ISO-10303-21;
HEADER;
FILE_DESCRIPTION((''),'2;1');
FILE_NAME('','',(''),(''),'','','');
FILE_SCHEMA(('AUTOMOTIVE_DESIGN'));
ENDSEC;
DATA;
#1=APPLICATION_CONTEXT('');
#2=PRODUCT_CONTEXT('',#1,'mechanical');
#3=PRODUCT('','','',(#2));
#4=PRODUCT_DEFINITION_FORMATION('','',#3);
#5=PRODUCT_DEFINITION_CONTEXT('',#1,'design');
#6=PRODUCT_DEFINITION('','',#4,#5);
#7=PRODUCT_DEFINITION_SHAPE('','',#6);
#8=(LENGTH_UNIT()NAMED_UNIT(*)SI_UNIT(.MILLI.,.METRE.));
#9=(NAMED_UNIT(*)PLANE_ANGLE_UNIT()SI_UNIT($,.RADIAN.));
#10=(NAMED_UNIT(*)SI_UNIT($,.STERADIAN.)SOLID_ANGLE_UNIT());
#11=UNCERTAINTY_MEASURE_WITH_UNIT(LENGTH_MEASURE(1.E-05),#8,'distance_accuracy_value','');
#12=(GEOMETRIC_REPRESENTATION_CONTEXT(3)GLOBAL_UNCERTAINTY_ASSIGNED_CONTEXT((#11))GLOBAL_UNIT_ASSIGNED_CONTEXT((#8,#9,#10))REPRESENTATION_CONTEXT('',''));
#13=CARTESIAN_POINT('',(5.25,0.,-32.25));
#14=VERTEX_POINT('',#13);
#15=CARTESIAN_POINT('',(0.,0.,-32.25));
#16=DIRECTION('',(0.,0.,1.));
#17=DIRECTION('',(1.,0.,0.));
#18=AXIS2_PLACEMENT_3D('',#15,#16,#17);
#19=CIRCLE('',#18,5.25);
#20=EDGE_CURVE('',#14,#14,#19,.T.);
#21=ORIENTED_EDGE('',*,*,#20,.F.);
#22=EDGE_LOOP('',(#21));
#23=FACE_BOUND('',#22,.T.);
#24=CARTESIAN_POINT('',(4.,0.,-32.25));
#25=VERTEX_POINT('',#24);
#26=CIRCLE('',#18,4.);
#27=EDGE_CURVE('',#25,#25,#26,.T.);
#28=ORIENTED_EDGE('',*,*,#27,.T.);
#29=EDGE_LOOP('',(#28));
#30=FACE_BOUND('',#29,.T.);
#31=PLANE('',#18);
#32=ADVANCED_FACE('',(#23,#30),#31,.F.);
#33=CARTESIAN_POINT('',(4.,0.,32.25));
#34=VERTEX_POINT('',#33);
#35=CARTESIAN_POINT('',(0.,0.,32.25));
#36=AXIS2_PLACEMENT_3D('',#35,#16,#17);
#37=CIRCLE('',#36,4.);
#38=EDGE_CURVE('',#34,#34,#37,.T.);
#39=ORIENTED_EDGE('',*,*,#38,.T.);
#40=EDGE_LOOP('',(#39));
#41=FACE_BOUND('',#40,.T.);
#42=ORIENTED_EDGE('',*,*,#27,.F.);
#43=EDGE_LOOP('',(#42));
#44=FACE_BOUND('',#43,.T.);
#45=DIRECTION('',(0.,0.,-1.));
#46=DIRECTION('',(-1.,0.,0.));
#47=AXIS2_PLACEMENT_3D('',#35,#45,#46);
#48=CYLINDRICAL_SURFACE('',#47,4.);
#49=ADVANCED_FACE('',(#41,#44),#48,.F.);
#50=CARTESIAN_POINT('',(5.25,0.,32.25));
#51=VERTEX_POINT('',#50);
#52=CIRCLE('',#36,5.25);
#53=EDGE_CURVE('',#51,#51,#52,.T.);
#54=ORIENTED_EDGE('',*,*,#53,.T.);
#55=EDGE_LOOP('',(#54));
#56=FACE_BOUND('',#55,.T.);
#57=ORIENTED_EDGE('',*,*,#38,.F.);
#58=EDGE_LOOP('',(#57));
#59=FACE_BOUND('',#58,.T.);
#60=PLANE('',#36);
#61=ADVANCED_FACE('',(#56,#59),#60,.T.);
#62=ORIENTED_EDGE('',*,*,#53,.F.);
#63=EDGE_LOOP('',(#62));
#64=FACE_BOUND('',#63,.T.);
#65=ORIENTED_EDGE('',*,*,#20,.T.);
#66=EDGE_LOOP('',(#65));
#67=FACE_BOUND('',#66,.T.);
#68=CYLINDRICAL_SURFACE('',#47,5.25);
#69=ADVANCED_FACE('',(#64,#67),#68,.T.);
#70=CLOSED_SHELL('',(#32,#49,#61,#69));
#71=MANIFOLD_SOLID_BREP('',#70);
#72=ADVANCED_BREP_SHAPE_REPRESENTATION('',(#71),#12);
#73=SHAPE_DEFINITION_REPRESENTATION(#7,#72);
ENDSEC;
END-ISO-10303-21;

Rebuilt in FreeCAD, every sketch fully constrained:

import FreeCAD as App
import Part
import Sketcher
from FreeCAD import Vector

doc = App.newDocument("Part")
body = doc.addObject("PartDesign::Body", "Body")

# Sketch on XY plane
sketch1 = doc.addObject("Sketcher::SketchObject", "Sketch")
body.addObject(sketch1)
sketch1.AttachmentSupport = (doc.XY_Plane, [""])
sketch1.MapMode = "FlatFace"
sketch1.addGeometry([
    Part.Circle(Vector(0, 0, 0), Vector(0, 0, 1), 5.2),
    Part.Circle(Vector(0, 0, 0), Vector(0, 0, 1), 4),
], False)
sketch1.addConstraint([
    Sketcher.Constraint("Coincident", 0, 3, -1, 1),
    Sketcher.Constraint("Coincident", 1, 3, -1, 1),
    Sketcher.Constraint("Diameter", 1, 8.0),
    Sketcher.Constraint("Diameter", 0, 10.5),
])
pad1 = doc.addObject("PartDesign::Pad", "Pad")
body.addObject(pad1)
pad1.Profile = sketch1
pad1.Length = 64.5
pad1.Midplane = True

doc.recompute()
